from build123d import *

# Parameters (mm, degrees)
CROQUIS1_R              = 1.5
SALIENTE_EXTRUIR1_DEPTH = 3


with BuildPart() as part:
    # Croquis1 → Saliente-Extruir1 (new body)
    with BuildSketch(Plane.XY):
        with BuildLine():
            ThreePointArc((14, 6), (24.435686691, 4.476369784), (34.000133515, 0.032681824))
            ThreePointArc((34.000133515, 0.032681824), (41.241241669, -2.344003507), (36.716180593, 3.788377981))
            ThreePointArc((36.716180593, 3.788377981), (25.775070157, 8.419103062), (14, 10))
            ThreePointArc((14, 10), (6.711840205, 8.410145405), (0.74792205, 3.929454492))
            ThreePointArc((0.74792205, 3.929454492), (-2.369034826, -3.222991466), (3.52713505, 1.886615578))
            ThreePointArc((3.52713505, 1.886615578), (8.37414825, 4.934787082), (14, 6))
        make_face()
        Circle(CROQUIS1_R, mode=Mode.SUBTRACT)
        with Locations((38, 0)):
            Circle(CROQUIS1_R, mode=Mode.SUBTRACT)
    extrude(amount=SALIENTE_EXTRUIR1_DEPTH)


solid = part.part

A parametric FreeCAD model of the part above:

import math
import FreeCAD as App
import Part
import Sketcher
from FreeCAD import Vector
Q = App.Units.Quantity

doc = App.newDocument("Part")
body = doc.addObject("PartDesign::Body", "Body")

sketch1 = doc.addObject("Sketcher::SketchObject", "Sketch")
body.addObject(sketch1)
sketch1.AttachmentSupport = (doc.XY_Plane, [""])
sketch1.MapMode = "FlatFace"
sketch1.addGeometry([
    Part.ArcOfCircle(Part.Circle(Vector(14, -30.5, 0), Vector(0, 0, 1), 36.5), math.radians(57), math.radians(90)),
    Part.ArcOfCircle(Part.Circle(Vector(38, 0, 0), Vector(0, 0, 1), 4), math.radians(180), math.radians(469)),
    Part.ArcOfCircle(Part.Circle(Vector(14, -34.6, 0), Vector(0, 0, 1), 44.6), math.radians(59), math.radians(90)),
    Part.ArcOfCircle(Part.Circle(Vector(14, -7.5, 0), Vector(0, 0, 1), 17.5), math.radians(90), math.radians(139)),
    Part.ArcOfCircle(Part.Circle(Vector(0, 0, 0), Vector(0, 0, 1), 4), math.radians(79), math.radians(388)),
    Part.ArcOfCircle(Part.Circle(Vector(14, -9.4, 0), Vector(0, 0, 1), 15.4), math.radians(90), math.radians(133)),
    Part.Circle(Vector(0, 0, 0), Vector(0, 0, 1), 1.5),
    Part.Circle(Vector(38, 0, 0), Vector(0, 0, 1), 1.5),
], False)
sketch1.addConstraint([
    Sketcher.Constraint("Coincident", 0, 1, 1, 1),
    Sketcher.Constraint("Coincident", 1, 2, 2, 1),
    Sketcher.Constraint("Tangent", 2, 2, 3, 1),
    Sketcher.Constraint("Coincident", 3, 2, 4, 1),
    Sketcher.Constraint("Coincident", 4, 2, 5, 2),
    Sketcher.Constraint("Tangent", 5, 1, 0, 2),
    Sketcher.Constraint("Coincident", 4, 3, -1, 1),
    Sketcher.Constraint("Coincident", 6, 3, -1, 1),
    Sketcher.Constraint("Coincident", 7, 3, 1, 3),
    Sketcher.Constraint("Equal", 1, 4),
    Sketcher.Constraint("Equal", 6, 7),
    Sketcher.Constraint("PointOnObject", 1, 3, -1),
    Sketcher.Constraint("Vertical", 0, 3, 2, 3),
    Sketcher.Constraint("Vertical", 2, 3, 3, 3),
    Sketcher.Constraint("Vertical", 3, 3, 5, 3),
    Sketcher.Constraint("Diameter", 6, Q("3 mm")),
    Sketcher.Constraint("Radius", 1, Q("4 mm")),
    Sketcher.Constraint("Radius", 0, Q("36.5 mm")),
    Sketcher.Constraint("Radius", 3, Q("17.5 mm")),
    Sketcher.Constraint("DistanceX", -1, 1, 0, 3, Q("14 mm")),
    Sketcher.Constraint("DistanceX", -1, 1, 1, 3, Q("38 mm")),
    Sketcher.Constraint("DistanceY", -1, 1, 2, 2, Q("10 mm")),
    Sketcher.Constraint("DistanceY", -1, 1, 5, 1, Q("6 mm")),
    Sketcher.Constraint("Radius", 5, Q("15.388889 mm")),
    Sketcher.Constraint("Radius", 2, Q("44.642857 mm")),
])
pad1 = doc.addObject("PartDesign::Pad", "Pad")
body.addObject(pad1)
pad1.Profile = sketch1
pad1.Length = 3

doc.recompute()
